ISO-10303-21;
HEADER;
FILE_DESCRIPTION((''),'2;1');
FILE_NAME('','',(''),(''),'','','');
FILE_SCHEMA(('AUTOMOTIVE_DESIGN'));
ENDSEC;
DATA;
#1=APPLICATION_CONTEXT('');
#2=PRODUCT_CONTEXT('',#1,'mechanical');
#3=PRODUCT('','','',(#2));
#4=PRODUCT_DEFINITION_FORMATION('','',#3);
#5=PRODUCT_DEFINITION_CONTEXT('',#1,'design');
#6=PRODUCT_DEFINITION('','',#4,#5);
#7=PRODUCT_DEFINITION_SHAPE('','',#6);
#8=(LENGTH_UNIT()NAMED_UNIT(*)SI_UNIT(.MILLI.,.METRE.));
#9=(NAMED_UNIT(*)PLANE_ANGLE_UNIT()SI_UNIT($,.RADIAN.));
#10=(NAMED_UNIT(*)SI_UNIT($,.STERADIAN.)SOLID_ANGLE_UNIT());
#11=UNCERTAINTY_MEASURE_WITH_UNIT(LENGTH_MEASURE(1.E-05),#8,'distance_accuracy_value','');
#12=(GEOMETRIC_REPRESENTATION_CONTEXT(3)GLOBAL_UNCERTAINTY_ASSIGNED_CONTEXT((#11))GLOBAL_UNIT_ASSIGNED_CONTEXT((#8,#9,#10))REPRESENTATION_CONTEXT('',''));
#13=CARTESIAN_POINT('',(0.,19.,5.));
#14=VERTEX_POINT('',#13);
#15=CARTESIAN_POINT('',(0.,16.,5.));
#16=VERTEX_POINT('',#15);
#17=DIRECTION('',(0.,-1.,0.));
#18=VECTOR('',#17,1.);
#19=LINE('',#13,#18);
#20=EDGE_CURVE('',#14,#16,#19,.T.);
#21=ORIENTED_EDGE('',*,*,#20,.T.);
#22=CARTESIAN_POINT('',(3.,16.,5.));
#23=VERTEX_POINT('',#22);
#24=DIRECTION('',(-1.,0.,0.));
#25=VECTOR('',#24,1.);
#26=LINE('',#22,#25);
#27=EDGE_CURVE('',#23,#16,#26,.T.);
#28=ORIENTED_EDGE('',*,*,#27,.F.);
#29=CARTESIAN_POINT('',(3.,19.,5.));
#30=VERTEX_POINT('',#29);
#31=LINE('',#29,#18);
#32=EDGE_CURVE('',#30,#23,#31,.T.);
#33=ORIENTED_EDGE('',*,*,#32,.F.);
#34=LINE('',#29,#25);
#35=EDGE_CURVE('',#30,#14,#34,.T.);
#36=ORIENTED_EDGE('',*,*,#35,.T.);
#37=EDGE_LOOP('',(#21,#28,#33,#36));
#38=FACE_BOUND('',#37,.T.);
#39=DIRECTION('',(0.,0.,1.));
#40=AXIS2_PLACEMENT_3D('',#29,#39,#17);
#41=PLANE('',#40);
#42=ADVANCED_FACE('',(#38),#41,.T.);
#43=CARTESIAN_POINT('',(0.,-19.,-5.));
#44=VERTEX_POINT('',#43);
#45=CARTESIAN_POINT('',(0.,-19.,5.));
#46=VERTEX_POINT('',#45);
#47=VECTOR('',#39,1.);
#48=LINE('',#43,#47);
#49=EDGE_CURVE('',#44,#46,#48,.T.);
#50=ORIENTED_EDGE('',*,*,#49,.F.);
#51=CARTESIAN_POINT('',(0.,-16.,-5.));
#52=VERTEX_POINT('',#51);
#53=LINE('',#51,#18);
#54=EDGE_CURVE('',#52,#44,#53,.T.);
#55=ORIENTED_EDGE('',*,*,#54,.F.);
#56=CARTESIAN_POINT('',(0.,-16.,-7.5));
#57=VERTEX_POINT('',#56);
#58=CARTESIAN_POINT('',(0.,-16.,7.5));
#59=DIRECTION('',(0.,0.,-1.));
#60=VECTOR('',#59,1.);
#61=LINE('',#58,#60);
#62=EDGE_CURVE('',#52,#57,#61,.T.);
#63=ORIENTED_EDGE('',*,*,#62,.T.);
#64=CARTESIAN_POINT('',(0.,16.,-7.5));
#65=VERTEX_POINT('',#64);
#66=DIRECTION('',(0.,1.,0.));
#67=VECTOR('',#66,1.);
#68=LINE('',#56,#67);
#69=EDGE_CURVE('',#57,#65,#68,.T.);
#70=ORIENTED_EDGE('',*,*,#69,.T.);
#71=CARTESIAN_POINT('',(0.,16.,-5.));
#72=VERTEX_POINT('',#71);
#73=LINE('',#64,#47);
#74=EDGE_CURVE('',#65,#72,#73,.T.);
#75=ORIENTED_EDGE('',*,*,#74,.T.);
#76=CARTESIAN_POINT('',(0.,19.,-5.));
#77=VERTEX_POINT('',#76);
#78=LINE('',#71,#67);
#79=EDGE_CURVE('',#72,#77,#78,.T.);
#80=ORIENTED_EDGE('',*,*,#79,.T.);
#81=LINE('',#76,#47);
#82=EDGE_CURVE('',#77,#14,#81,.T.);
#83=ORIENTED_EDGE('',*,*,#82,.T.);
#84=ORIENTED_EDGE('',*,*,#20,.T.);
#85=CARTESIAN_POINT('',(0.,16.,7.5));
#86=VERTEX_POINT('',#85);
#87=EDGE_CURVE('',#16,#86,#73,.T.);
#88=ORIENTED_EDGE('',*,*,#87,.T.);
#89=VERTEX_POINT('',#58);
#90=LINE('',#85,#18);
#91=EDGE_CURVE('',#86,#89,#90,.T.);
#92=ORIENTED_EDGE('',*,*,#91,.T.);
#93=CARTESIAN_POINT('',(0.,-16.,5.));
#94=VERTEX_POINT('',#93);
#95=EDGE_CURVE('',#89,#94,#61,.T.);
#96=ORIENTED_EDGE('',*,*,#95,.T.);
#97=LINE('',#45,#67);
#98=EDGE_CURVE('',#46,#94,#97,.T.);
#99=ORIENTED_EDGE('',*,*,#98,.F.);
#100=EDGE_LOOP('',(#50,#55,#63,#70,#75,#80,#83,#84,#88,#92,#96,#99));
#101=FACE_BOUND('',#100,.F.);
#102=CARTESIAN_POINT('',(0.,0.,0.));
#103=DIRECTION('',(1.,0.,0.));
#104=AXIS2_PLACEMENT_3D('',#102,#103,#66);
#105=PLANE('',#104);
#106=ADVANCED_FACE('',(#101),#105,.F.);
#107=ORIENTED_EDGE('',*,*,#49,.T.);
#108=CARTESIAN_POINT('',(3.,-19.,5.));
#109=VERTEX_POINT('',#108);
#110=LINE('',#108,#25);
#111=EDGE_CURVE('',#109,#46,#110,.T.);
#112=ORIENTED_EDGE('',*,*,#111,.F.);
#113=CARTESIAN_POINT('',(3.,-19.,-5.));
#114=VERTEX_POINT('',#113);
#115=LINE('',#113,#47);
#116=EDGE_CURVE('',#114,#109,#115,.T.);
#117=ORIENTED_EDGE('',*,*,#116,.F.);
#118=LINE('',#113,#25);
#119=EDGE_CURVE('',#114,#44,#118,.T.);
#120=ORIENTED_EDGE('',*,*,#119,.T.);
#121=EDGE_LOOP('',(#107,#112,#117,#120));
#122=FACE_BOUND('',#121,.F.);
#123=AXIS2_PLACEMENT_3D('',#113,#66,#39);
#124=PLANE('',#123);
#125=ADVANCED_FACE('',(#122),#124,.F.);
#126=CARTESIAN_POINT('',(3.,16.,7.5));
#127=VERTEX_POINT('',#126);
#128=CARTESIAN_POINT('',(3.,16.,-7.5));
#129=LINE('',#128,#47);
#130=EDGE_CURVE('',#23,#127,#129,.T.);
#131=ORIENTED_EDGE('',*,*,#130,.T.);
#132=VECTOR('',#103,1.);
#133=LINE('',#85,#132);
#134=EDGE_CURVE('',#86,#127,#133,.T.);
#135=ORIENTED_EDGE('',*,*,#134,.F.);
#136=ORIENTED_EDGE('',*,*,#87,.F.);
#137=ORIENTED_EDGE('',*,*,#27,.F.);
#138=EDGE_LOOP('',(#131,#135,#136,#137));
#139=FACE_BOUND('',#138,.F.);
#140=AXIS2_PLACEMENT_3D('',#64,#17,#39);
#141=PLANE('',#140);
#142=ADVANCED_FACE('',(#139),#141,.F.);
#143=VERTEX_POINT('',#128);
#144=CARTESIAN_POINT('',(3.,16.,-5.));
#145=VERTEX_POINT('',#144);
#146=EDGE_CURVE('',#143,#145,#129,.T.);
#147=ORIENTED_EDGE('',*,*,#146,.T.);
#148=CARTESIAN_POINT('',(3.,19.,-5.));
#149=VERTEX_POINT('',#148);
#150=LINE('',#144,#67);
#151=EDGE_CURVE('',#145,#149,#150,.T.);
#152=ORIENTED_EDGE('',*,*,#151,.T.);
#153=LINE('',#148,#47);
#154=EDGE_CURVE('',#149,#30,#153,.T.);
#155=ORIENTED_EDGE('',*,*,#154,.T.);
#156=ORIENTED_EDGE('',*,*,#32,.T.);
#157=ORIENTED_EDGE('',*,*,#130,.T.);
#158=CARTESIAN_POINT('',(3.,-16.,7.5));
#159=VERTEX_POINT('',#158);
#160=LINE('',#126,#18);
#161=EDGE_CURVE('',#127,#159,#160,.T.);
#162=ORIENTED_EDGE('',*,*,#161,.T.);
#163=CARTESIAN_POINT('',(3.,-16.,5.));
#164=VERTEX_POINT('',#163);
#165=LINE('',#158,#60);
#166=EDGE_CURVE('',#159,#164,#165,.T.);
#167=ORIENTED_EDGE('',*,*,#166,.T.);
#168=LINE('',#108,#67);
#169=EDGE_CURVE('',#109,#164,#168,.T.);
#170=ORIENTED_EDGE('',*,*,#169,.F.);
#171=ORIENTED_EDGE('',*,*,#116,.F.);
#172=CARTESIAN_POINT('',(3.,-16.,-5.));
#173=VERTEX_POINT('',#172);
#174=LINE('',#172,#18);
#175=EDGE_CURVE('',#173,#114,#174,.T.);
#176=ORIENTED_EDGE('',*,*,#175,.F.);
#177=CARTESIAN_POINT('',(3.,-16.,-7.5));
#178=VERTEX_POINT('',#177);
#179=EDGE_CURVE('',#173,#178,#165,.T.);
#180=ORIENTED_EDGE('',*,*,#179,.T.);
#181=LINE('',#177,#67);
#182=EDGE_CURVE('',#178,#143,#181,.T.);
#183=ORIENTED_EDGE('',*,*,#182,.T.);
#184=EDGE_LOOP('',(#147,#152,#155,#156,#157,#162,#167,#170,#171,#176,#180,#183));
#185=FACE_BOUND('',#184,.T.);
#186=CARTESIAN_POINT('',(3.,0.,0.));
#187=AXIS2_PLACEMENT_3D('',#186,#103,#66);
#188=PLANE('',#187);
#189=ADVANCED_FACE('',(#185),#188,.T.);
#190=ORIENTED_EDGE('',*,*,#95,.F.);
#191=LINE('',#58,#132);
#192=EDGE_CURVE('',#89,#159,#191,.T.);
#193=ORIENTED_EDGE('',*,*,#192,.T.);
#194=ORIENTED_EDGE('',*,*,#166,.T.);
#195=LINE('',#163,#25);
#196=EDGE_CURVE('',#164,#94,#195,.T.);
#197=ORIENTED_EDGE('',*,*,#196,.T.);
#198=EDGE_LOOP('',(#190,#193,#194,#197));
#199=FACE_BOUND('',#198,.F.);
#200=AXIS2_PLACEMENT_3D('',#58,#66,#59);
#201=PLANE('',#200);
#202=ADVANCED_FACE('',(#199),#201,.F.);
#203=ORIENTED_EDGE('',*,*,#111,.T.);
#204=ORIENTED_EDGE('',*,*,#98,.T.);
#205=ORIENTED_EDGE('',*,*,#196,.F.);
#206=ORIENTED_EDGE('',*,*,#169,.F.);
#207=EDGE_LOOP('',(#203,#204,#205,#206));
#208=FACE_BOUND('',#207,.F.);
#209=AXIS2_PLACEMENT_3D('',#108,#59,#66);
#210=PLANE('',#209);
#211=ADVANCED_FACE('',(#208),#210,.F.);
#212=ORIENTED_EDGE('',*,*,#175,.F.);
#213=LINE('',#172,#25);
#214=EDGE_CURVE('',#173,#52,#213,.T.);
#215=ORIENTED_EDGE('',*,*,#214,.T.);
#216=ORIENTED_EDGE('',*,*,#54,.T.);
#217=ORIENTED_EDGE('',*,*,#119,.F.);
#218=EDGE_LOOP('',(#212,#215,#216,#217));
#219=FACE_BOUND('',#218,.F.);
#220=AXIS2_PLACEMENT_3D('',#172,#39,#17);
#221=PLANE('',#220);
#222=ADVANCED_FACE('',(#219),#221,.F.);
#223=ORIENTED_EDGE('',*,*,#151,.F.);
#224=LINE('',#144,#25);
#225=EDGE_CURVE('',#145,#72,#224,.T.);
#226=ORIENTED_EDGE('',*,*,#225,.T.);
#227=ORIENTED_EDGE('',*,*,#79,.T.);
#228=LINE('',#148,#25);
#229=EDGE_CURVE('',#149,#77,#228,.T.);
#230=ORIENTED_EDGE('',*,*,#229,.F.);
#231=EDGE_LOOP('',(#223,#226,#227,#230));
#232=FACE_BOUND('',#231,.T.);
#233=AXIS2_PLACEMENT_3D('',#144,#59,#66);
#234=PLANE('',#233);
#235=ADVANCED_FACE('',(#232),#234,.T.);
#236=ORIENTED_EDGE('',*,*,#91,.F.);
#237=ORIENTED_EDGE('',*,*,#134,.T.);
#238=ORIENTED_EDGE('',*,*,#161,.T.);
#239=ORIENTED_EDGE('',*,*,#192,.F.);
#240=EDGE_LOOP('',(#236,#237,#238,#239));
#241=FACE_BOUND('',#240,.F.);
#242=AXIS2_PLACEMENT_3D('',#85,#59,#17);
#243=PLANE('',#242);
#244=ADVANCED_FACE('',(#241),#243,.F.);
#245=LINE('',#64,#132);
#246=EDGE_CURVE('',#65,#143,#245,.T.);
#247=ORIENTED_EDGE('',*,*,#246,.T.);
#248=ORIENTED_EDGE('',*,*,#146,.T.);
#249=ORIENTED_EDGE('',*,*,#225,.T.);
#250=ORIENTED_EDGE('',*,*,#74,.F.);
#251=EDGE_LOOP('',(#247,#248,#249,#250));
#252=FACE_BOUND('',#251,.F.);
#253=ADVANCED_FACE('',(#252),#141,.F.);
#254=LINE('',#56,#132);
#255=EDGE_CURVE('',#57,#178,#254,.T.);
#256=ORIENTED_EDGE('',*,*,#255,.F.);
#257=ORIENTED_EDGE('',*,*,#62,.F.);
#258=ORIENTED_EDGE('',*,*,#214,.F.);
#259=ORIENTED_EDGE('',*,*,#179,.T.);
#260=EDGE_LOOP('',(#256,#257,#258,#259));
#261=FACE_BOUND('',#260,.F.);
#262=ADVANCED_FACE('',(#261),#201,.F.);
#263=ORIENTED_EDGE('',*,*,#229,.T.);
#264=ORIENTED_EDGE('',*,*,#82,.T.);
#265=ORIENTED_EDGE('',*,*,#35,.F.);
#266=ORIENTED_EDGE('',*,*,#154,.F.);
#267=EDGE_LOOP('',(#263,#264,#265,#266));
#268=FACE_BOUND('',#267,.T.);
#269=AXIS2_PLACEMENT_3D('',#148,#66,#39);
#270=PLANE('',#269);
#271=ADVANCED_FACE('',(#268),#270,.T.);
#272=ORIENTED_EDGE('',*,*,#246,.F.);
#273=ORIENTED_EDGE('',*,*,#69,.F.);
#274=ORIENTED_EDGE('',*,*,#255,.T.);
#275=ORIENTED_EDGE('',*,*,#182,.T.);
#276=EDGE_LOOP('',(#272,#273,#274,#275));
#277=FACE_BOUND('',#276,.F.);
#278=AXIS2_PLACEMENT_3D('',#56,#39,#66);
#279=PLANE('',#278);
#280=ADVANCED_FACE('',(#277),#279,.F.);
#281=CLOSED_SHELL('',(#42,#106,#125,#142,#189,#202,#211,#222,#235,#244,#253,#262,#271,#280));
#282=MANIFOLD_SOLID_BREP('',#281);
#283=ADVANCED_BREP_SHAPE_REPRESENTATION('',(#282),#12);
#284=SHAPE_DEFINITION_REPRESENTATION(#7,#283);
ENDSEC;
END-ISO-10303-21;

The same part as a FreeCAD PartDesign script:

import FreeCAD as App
import Part
import Sketcher
from FreeCAD import Vector

doc = App.newDocument("Part")
body = doc.addObject("PartDesign::Body", "Body")

sketch1 = body.newObject("Sketcher::SketchObject", "Sketch")
sketch1.AttachmentSupport = (doc.getObject("YZ_Plane"), [""])
sketch1.MapMode = "FlatFace"
sketch1.addGeometry(Part.LineSegment(Vector(-16, 8, 0), Vector(-16, -8, 0)), False)
sketch1.addGeometry(Part.LineSegment(Vector(-16, -8, 0), Vector(16, -8, 0)), False)
sketch1.addGeometry(Part.LineSegment(Vector(16, -8, 0), Vector(16, 8, 0)), False)
sketch1.addGeometry(Part.LineSegment(Vector(16, 8, 0), Vector(-16, 8, 0)), False)
sketch1.addConstraint(Sketcher.Constraint("Coincident", 0, 2, 1, 1))
sketch1.addConstraint(Sketcher.Constraint("Coincident", 1, 2, 2, 1))
sketch1.addConstraint(Sketcher.Constraint("Coincident", 2, 2, 3, 1))
sketch1.addConstraint(Sketcher.Constraint("Coincident", 3, 2, 0, 1))
sketch1.addConstraint(Sketcher.Constraint("Vertical", 0))
sketch1.addConstraint(Sketcher.Constraint("Horizontal", 1))
sketch1.addConstraint(Sketcher.Constraint("Vertical", 2))
sketch1.addConstraint(Sketcher.Constraint("Horizontal", 3))
sketch1.addConstraint(Sketcher.Constraint("Symmetric", 0, 2, 2, 2, -1, 1))
sketch1.addConstraint(Sketcher.Constraint("DistanceX", 1, 1, 1, 2, 32.0))
sketch1.addConstraint(Sketcher.Constraint("DistanceY", 0, 2, 0, 1, 15.0))
pad1 = body.newObject("PartDesign::Pad", "Pad")
pad1.Profile = sketch1
pad1.Length = 3

sketch2 = body.newObject("Sketcher::SketchObject", "Sketch001")
sketch2.AttachmentSupport = (doc.getObject("YZ_Plane"), [""])
sketch2.MapMode = "FlatFace"
sketch2.AttachmentOffset = App.Placement(Vector(0, 0, 3), App.Rotation())
sketch2.addGeometry(Part.LineSegment(Vector(16, 5, 0), Vector(16, -5, 0)), False)
sketch2.addGeometry(Part.LineSegment(Vector(16, -5, 0), Vector(19, -5, 0)), False)
sketch2.addGeometry(Part.LineSegment(Vector(19, -5, 0), Vector(19, 5, 0)), False)
sketch2.addGeometry(Part.LineSegment(Vector(19, 5, 0), Vector(16, 5, 0)), False)
sketch2.addGeometry(Part.LineSegment(Vector(-16, -5, 0), Vector(-16, 5, 0)), False)
sketch2.addGeometry(Part.LineSegment(Vector(-16, 5, 0), Vector(-19, 5, 0)), False)
sketch2.addGeometry(Part.LineSegment(Vector(-19, 5, 0), Vector(-19, -5, 0)), False)
sketch2.addGeometry(Part.LineSegment(Vector(-19, -5, 0), Vector(-16, -5, 0)), False)
sketch2.addConstraint(Sketcher.Constraint("Coincident", 0, 2, 1, 1))
sketch2.addConstraint(Sketcher.Constraint("Coincident", 1, 2, 2, 1))
sketch2.addConstraint(Sketcher.Constraint("Coincident", 2, 2, 3, 1))
sketch2.addConstraint(Sketcher.Constraint("Coincident", 3, 2, 0, 1))
sketch2.addConstraint(Sketcher.Constraint("Coincident", 4, 2, 5, 1))
sketch2.addConstraint(Sketcher.Constraint("Coincident", 5, 2, 6, 1))
sketch2.addConstraint(Sketcher.Constraint("Coincident", 6, 2, 7, 1))
sketch2.addConstraint(Sketcher.Constraint("Coincident", 7, 2, 4, 1))
sketch2.addConstraint(Sketcher.Constraint("Vertical", 0))
sketch2.addConstraint(Sketcher.Constraint("Horizontal", 1))
sketch2.addConstraint(Sketcher.Constraint("Vertical", 2))
sketch2.addConstraint(Sketcher.Constraint("Horizontal", 3))
sketch2.addConstraint(Sketcher.Constraint("Vertical", 4))
sketch2.addConstraint(Sketcher.Constraint("Horizontal", 5))
sketch2.addConstraint(Sketcher.Constraint("Vertical", 6))
sketch2.addConstraint(Sketcher.Constraint("Horizontal", 7))
sketch2.addConstraint(Sketcher.Constraint("Symmetric", 0, 2, 4, 2, -1, 1))
sketch2.addConstraint(Sketcher.Constraint("Symmetric", 2, 2, 6, 2, -1, 1))
sketch2.addConstraint(Sketcher.Constraint("Horizontal", 3, 2, 4, 2))
sketch2.addConstraint(Sketcher.Constraint("DistanceX", 1, 1, 1, 2, 3.0))
sketch2.addConstraint(Sketcher.Constraint("DistanceY", 0, 2, 0, 1, 10.0))
sketch2.addConstraint(Sketcher.Constraint("DistanceX", -1, 1, 0, 2, 16.0))
pad2 = body.newObject("PartDesign::Pad", "Pad001")
pad2.Profile = sketch2
pad2.Length = 3
pad2.Reversed = True

doc.recompute()
